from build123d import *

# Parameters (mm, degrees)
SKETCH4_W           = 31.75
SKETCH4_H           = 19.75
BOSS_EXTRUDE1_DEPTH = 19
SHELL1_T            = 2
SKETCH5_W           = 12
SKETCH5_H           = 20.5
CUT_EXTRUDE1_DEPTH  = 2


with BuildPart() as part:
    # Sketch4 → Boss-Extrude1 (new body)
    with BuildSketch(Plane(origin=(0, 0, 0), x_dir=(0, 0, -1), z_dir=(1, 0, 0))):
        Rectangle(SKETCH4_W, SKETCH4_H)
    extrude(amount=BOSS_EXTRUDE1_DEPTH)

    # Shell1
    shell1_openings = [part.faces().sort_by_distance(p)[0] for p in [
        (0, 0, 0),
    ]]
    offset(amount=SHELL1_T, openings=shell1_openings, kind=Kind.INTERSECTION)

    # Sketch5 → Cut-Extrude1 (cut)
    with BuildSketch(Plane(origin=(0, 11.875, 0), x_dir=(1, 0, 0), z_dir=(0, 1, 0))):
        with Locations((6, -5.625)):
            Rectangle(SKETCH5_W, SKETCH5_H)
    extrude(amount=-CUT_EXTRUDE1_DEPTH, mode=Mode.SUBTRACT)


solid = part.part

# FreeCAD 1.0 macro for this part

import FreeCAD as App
import Part
import Sketcher
Q = App.Units.Quantity


def faces_at(feature, points):
    """Names of the faces that lie closest to the given points."""
    faces = feature.Shape.Faces
    near = lambda p: min(range(len(faces)), key=lambda i: faces[i].distToShape(Part.Vertex(*p))[0])
    return sorted({f"Face{near(p) + 1}" for p in points})


def add_polygon(sketch, points):
    """Adds a closed chain of lines whose ends are joined by coincident constraints."""
    first, n = sketch.GeometryCount, len(points)
    for a, b in zip(points, points[1:] + points[:1]):
        sketch.addGeometry(Part.LineSegment(App.Vector(*a, 0), App.Vector(*b, 0)), False)
    for i in range(n):
        sketch.addConstraint(Sketcher.Constraint("Coincident", first + i, 2, first + (i + 1) % n, 1))

doc = App.newDocument("Part")
body = doc.addObject("PartDesign::Body", "Body")

# Sketch on YZ plane
sketch1 = body.newObject("Sketcher::SketchObject", "Sketch")
sketch1.AttachmentSupport = (doc.getObject("YZ_Plane"), [""])
sketch1.MapMode = "FlatFace"
add_polygon(sketch1, [(10, 16), (-10, 16), (-10, -16), (10, -16)])  # lines 0-3
sketch1.addConstraint(Sketcher.Constraint("Horizontal", 0))
sketch1.addConstraint(Sketcher.Constraint("Vertical", 1))
sketch1.addConstraint(Sketcher.Constraint("Horizontal", 2))
sketch1.addConstraint(Sketcher.Constraint("Vertical", 3))
sketch1.addConstraint(Sketcher.Constraint("Symmetric", 0, 2, 2, 2, -1, 1))
sketch1.addConstraint(Sketcher.Constraint("DistanceX", 0, 2, 0, 1, Q("19.75 mm")))
sketch1.addConstraint(Sketcher.Constraint("DistanceY", 1, 2, 1, 1, Q("31.75 mm")))
pad1 = body.newObject("PartDesign::Pad", "Pad")
pad1.Profile = sketch1
pad1.Length = 19
doc.recompute()

thickness = body.newObject("PartDesign::Thickness", "Thickness")
thickness.Base = (pad1, faces_at(pad1, [(0, 0, 0)]))
thickness.Value = 2
thickness.Reversed = False
thickness.Join = "Intersection"

# Sketch on XZ plane
sketch2 = body.newObject("Sketcher::SketchObject", "Sketch001")
sketch2.AttachmentSupport = (doc.getObject("XZ_Plane"), [""])
sketch2.MapMode = "FlatFace"
sketch2.AttachmentOffset = App.Placement(App.Vector(0, 0, -11.875), App.Rotation())
add_polygon(sketch2, [(0, -5), (0, 16), (12, 16), (12, -5)])  # lines 0-3
sketch2.addConstraint(Sketcher.Constraint("Vertical", 0))
sketch2.addConstraint(Sketcher.Constraint("Horizontal", 1))
sketch2.addConstraint(Sketcher.Constraint("Vertical", 2))
sketch2.addConstraint(Sketcher.Constraint("Horizontal", 3))
sketch2.addConstraint(Sketcher.Constraint("PointOnObject", 0, 2, -2))
sketch2.addConstraint(Sketcher.Constraint("DistanceX", 1, 1, 1, 2, Q("12 mm")))
sketch2.addConstraint(Sketcher.Constraint("DistanceY", 0, 1, 0, 2, Q("20.5 mm")))
sketch2.addConstraint(Sketcher.Constraint("DistanceY", -1, 1, 0, 2, Q("15.875 mm")))
pocket1 = body.newObject("PartDesign::Pocket", "Pocket")
pocket1.Profile = sketch2
pocket1.Length = 2
pocket1.Reversed = True

doc.recompute()
